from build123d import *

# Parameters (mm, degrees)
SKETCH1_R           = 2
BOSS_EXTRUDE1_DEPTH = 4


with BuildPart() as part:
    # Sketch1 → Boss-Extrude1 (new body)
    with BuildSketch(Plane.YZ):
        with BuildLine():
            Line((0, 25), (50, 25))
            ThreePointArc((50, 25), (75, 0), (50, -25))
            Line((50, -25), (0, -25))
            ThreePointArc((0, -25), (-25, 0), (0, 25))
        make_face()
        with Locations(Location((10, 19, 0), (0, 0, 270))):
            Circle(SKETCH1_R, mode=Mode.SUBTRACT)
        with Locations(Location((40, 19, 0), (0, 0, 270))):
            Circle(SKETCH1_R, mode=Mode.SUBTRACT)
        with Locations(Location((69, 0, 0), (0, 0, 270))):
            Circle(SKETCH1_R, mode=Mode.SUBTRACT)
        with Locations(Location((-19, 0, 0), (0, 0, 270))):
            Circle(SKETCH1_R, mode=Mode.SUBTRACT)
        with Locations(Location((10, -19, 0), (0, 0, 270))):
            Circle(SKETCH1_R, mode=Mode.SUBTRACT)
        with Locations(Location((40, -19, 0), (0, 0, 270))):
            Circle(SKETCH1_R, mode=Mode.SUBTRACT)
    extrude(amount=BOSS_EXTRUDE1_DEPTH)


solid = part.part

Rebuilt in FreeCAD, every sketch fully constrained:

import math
import FreeCAD as App
import Part
import Sketcher

doc = App.newDocument("Part")
params = doc.addObject("Spreadsheet::Sheet", "Params")
for row, (alias, value) in enumerate([
    ("sketch1_diameter", "4 mm"),
    ("sketch1_radius", "25 mm"),
    ("sketch1_width", "50 mm"),
    ("pad1_length", "4 mm"),
], start=1):
    params.set(f"A{row}", alias)
    params.set(f"B{row}", "=" + value)
    params.setAlias(f"B{row}", alias)

body = doc.addObject("PartDesign::Body", "Body")

# Sketch on YZ plane
sketch1 = doc.addObject("Sketcher::SketchObject", "Sketch")
body.addObject(sketch1)
sketch1.AttachmentSupport = (doc.YZ_Plane, [""])
sketch1.MapMode = "FlatFace"
sketch1.addGeometry([
    Part.LineSegment(App.Vector(50, 25, 0), App.Vector(0, 25, 0)),  # 0
    Part.ArcOfCircle(Part.Circle(App.Vector(0, 0, 0), App.Vector(0, 0, 1), 25), math.radians(90), math.radians(270)),  # 1
    Part.LineSegment(App.Vector(0, -25, 0), App.Vector(50, -25, 0)),  # 2
    Part.ArcOfCircle(Part.Circle(App.Vector(50, 0, 0), App.Vector(0, 0, 1), 25), math.radians(-90), math.radians(90)),  # 3
    Part.Circle(App.Vector(40, -19, 0), App.Vector(0, 0, 1), 2),  # 4
    Part.Circle(App.Vector(10, -19, 0), App.Vector(0, 0, 1), 2),  # 5
    Part.Circle(App.Vector(69, 0, 0), App.Vector(0, 0, 1), 2),  # 6
    Part.Circle(App.Vector(40, 19, 0), App.Vector(0, 0, 1), 2),  # 7
    Part.Circle(App.Vector(-19, 0, 0), App.Vector(0, 0, 1), 2),  # 8
    Part.Circle(App.Vector(10, 19, 0), App.Vector(0, 0, 1), 2),  # 9
], False)
sketch1.addConstraint([
    Sketcher.Constraint("Tangent", 0, 2, 1, 1),
    Sketcher.Constraint("Tangent", 1, 2, 2, 1),
    Sketcher.Constraint("Tangent", 2, 2, 3, 1),
    Sketcher.Constraint("Tangent", 3, 2, 0, 1),
    Sketcher.Constraint("Horizontal", 0),
    Sketcher.Constraint("Horizontal", 2),
    Sketcher.Constraint("Coincident", 1, 3, -1, 1),
    Sketcher.Constraint("Equal", 4, 5),
    Sketcher.Constraint("Equal", 5, 6),
    Sketcher.Constraint("Equal", 6, 7),
    Sketcher.Constraint("Equal", 7, 8),
    Sketcher.Constraint("Equal", 8, 9),
    Sketcher.Constraint("Symmetric", 4, 3, 7, 3, -1),
    Sketcher.Constraint("Symmetric", 5, 3, 9, 3, -1),
    Sketcher.Constraint("PointOnObject", 6, 3, -1),
    Sketcher.Constraint("PointOnObject", 8, 3, -1),
    Sketcher.Constraint("Horizontal", 4, 3, 5, 3),
    Sketcher.Constraint("Diameter", 4, 4.0),
    Sketcher.Constraint("Radius", 1, 25.0),
    Sketcher.Constraint("DistanceX", 0, 2, 0, 1, 50.0),
    Sketcher.Constraint("DistanceX", -1, 1, 4, 3, 40.0),
    Sketcher.Constraint("DistanceY", 4, 3, -1, 1, 19.0),
    Sketcher.Constraint("DistanceX", -1, 1, 5, 3, 10.0),
    Sketcher.Constraint("DistanceX", -1, 1, 6, 3, 69.0),
    Sketcher.Constraint("DistanceX", 8, 3, -1, 1, 19.0),
])
sketch1.setExpression("Constraints[17]", "Params.sketch1_diameter")
sketch1.setExpression("Constraints[18]", "Params.sketch1_radius")
sketch1.setExpression("Constraints[19]", "Params.sketch1_width")
pad1 = doc.addObject("PartDesign::Pad", "Pad")
body.addObject(pad1)
pad1.Profile = sketch1
pad1.setExpression("Length", "Params.pad1_length")

doc.recompute()
